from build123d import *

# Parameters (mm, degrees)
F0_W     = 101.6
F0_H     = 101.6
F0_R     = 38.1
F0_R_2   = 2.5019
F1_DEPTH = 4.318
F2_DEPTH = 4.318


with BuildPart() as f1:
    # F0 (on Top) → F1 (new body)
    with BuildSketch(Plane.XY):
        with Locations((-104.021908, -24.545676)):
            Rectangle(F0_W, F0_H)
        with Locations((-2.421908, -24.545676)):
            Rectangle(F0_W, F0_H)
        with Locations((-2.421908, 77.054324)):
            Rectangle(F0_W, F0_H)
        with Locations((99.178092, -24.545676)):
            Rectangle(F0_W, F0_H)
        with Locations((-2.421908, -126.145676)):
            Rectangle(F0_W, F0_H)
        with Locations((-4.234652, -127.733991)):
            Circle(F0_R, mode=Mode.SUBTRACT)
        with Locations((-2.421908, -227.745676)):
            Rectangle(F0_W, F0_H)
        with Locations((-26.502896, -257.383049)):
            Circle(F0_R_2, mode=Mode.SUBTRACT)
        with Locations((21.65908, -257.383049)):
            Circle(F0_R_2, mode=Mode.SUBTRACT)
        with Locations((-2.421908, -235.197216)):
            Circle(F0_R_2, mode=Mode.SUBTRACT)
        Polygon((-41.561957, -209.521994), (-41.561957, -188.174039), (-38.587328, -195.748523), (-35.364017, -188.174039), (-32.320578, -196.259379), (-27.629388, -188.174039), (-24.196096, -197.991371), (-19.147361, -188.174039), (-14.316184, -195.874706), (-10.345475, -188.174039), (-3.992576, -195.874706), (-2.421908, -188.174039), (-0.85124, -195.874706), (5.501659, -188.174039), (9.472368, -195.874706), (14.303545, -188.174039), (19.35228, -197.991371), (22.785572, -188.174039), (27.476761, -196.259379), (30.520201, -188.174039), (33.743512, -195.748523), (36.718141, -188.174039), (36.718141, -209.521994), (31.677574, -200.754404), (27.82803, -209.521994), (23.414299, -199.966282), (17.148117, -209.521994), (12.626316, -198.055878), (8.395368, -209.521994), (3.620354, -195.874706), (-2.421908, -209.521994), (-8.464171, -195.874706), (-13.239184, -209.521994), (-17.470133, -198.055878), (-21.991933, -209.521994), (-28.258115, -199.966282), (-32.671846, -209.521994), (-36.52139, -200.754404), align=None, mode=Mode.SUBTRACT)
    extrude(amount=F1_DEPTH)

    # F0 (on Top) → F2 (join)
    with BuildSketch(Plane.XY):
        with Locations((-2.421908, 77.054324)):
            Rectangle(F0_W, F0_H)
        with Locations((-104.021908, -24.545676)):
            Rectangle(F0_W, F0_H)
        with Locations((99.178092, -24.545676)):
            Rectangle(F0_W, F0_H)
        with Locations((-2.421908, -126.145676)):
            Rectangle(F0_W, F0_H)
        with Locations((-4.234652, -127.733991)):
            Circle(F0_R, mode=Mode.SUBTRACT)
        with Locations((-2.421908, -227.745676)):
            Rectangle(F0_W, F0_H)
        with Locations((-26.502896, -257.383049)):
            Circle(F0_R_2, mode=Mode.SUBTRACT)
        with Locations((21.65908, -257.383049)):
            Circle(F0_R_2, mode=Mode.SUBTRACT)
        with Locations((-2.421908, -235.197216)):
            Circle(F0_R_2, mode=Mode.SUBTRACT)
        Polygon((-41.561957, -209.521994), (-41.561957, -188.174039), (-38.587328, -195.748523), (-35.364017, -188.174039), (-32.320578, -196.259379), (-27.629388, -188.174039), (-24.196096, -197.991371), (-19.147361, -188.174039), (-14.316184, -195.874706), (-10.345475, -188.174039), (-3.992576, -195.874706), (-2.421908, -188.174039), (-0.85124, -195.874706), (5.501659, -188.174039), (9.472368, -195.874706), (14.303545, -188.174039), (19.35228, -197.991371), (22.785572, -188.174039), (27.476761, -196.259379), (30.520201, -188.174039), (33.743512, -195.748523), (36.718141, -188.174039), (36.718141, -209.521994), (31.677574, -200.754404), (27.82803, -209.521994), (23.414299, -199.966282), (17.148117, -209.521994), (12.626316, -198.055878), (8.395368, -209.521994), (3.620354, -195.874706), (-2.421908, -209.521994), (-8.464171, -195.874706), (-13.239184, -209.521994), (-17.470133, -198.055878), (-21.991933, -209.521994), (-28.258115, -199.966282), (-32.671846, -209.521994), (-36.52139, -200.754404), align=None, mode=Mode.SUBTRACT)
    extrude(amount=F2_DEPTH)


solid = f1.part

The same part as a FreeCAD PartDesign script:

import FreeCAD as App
import Part
import Sketcher
from FreeCAD import Vector
Q = App.Units.Quantity


def add_polygon(sketch, points):
    """Adds a closed chain of lines whose ends are joined by coincident constraints."""
    first, n = sketch.GeometryCount, len(points)
    for a, b in zip(points, points[1:] + points[:1]):
        sketch.addGeometry(Part.LineSegment(App.Vector(*a, 0), App.Vector(*b, 0)), False)
    for i in range(n):
        sketch.addConstraint(Sketcher.Constraint("Coincident", first + i, 2, first + (i + 1) % n, 1))

doc = App.newDocument("Part")
params = doc.addObject("Spreadsheet::Sheet", "Params")
for row, (alias, value) in enumerate([
    ("sketch1_diameter", "3 in"),
    ("sketch1_width", "4 in"),
    ("sketch1_height", "8 in"),
    ("sketch1_diameter2", "0.197 in"),
    ("pad1_length", "0.17 in"),
    ("sketch2_diameter", "3 in"),
    ("sketch2_width", "4 in"),
    ("sketch2_height", "8 in"),
    ("sketch2_diameter2", "0.197 in"),
    ("pad2_length", "0.17 in"),
], start=1):
    params.set(f"A{row}", alias)
    params.set(f"B{row}", "=" + value)
    params.setAlias(f"B{row}", alias)

body = doc.addObject("PartDesign::Body", "Body")

sketch1 = body.newObject("Sketcher::SketchObject", "Sketch")
sketch1.AttachmentSupport = (doc.getObject("XY_Plane"), [""])
sketch1.MapMode = "FlatFace"
add_polygon(sketch1, [(-154.821908, 26.254324), (-154.821908, -75.345676), (-53.221908, -75.345676), (-53.221908, -278.545676), (48.378092, -278.545676), (48.378092, -75.345676), (149.978092, -75.345676), (149.978092, 26.254324), (48.378092, 26.254324), (48.378092, 127.854324), (-53.221908, 127.854324), (-53.221908, 26.254324)])
sketch1.addGeometry(Part.Circle(Vector(-26.502896, -257.383049, 0), Vector(0, 0, 1), 2.5019), False)
sketch1.addGeometry(Part.Circle(Vector(-2.421908, -235.197216, 0), Vector(0, 0, 1), 2.5019), False)
sketch1.addGeometry(Part.Circle(Vector(21.65908, -257.383049, 0), Vector(0, 0, 1), 2.5019), False)
add_polygon(sketch1, [(-36.52139, -200.754404), (-41.561957, -209.521994), (-41.561957, -188.174039), (-38.587328, -195.748523), (-35.364017, -188.174039), (-32.320578, -196.259379), (-27.629388, -188.174039), (-24.196096, -197.991371), (-19.147361, -188.174039), (-14.316184, -195.874706), (-10.345475, -188.174039), (-3.992576, -195.874706), (-2.421908, -188.174039), (-0.85124, -195.874706), (5.501659, -188.174039), (9.472368, -195.874706), (14.303545, -188.174039), (19.35228, -197.991371), (22.785572, -188.174039), (27.476761, -196.259379), (30.520201, -188.174039), (33.743512, -195.748523), (36.718141, -188.174039), (36.718141, -209.521994), (31.677574, -200.754404), (27.82803, -209.521994), (23.414299, -199.966282), (17.148117, -209.521994), (12.626316, -198.055878), (8.395368, -209.521994), (3.620354, -195.874706), (-2.421908, -209.521994), (-8.464171, -195.874706), (-13.239184, -209.521994), (-17.470133, -198.055878), (-21.991933, -209.521994), (-28.258115, -199.966282), (-32.671846, -209.521994)])
sketch1.addGeometry(Part.Circle(Vector(-4.234652, -127.733991, 0), Vector(0, 0, 1), 38.1), False)
sketch1.addConstraint(Sketcher.Constraint("Vertical", 0))
sketch1.addConstraint(Sketcher.Constraint("Horizontal", 1))
sketch1.addConstraint(Sketcher.Constraint("Vertical", 2))
sketch1.addConstraint(Sketcher.Constraint("Horizontal", 3))
sketch1.addConstraint(Sketcher.Constraint("Vertical", 4))
sketch1.addConstraint(Sketcher.Constraint("Horizontal", 5))
sketch1.addConstraint(Sketcher.Constraint("Vertical", 6))
sketch1.addConstraint(Sketcher.Constraint("Horizontal", 7))
sketch1.addConstraint(Sketcher.Constraint("Vertical", 8))
sketch1.addConstraint(Sketcher.Constraint("Horizontal", 9))
sketch1.addConstraint(Sketcher.Constraint("Vertical", 10))
sketch1.addConstraint(Sketcher.Constraint("Horizontal", 11))
sketch1.addConstraint(Sketcher.Constraint("Vertical", 16))
sketch1.addConstraint(Sketcher.Constraint("Vertical", 37))
sketch1.addConstraint(Sketcher.Constraint("Equal", 12, 13))
sketch1.addConstraint(Sketcher.Constraint("Equal", 13, 14))
sketch1.addConstraint(Sketcher.Constraint("Horizontal", 12, 3, 14, 3))
sketch1.addConstraint(Sketcher.Constraint("Horizontal", 1, 2, 4, 2))
sketch1.addConstraint(Sketcher.Constraint("Horizontal", 7, 2, 10, 2))
sketch1.addConstraint(Sketcher.Constraint("Horizontal", 16, 2, 18, 2))
sketch1.addConstraint(Sketcher.Constraint("Horizontal", 18, 2, 20, 2))
sketch1.addConstraint(Sketcher.Constraint("Horizontal", 20, 2, 22, 2))
sketch1.addConstraint(Sketcher.Constraint("Horizontal", 22, 2, 24, 2))
sketch1.addConstraint(Sketcher.Constraint("Horizontal", 23, 2, 25, 2))
sketch1.addConstraint(Sketcher.Constraint("Horizontal", 24, 2, 26, 2))
sketch1.addConstraint(Sketcher.Constraint("Horizontal", 25, 2, 27, 2))
sketch1.addConstraint(Sketcher.Constraint("Horizontal", 26, 2, 28, 2))
sketch1.addConstraint(Sketcher.Constraint("Horizontal", 27, 2, 29, 2))
sketch1.addConstraint(Sketcher.Constraint("Horizontal", 28, 2, 30, 2))
sketch1.addConstraint(Sketcher.Constraint("Horizontal", 21, 2, 31, 2))
sketch1.addConstraint(Sketcher.Constraint("Horizontal", 30, 2, 32, 2))
sketch1.addConstraint(Sketcher.Constraint("Horizontal", 19, 2, 33, 2))
sketch1.addConstraint(Sketcher.Constraint("Horizontal", 32, 2, 34, 2))
sketch1.addConstraint(Sketcher.Constraint("Horizontal", 17, 2, 35, 2))
sketch1.addConstraint(Sketcher.Constraint("Horizontal", 34, 2, 36, 2))
sketch1.addConstraint(Sketcher.Constraint("Horizontal", 15, 2, 37, 2))
sketch1.addConstraint(Sketcher.Constraint("Horizontal", 37, 2, 39, 2))
sketch1.addConstraint(Sketcher.Constraint("Horizontal", 39, 2, 41, 2))
sketch1.addConstraint(Sketcher.Constraint("Horizontal", 41, 2, 43, 2))
sketch1.addConstraint(Sketcher.Constraint("Horizontal", 29, 2, 44, 2))
sketch1.addConstraint(Sketcher.Constraint("Horizontal", 43, 2, 45, 2))
sketch1.addConstraint(Sketcher.Constraint("Horizontal", 44, 2, 46, 2))
sketch1.addConstraint(Sketcher.Constraint("Horizontal", 45, 2, 47, 2))
sketch1.addConstraint(Sketcher.Constraint("Horizontal", 42, 2, 48, 2))
sketch1.addConstraint(Sketcher.Constraint("Horizontal", 47, 2, 49, 2))
sketch1.addConstraint(Sketcher.Constraint("Horizontal", 40, 2, 50, 2))
sketch1.addConstraint(Sketcher.Constraint("Horizontal", 49, 2, 51, 2))
sketch1.addConstraint(Sketcher.Constraint("Horizontal", 38, 2, 52, 2))
sketch1.addConstraint(Sketcher.Constraint("Vertical", 4, 2, 7, 2))
sketch1.addConstraint(Sketcher.Constraint("Vertical", 2, 2, 9, 2))
sketch1.addConstraint(Sketcher.Constraint("Vertical", 13, 3, 26, 2))
sketch1.addConstraint(Sketcher.Constraint("Vertical", 26, 2, 45, 2))
sketch1.addConstraint(Sketcher.Constraint("Equal", 1, 3))
sketch1.addConstraint(Sketcher.Constraint("Equal", 3, 5))
sketch1.addConstraint(Sketcher.Constraint("Equal", 11, 0))
sketch1.addConstraint(Sketcher.Constraint("Equal", 6, 8))
sketch1.addConstraint(Sketcher.Constraint("Equal", 26, 27))
sketch1.addConstraint(Sketcher.Constraint("Equal", 25, 28))
sketch1.addConstraint(Sketcher.Constraint("Equal", 24, 29))
sketch1.addConstraint(Sketcher.Constraint("Equal", 23, 30))
sketch1.addConstraint(Sketcher.Constraint("Equal", 22, 31))
sketch1.addConstraint(Sketcher.Constraint("Equal", 21, 32))
sketch1.addConstraint(Sketcher.Constraint("Equal", 20, 33))
sketch1.addConstraint(Sketcher.Constraint("Equal", 19, 34))
sketch1.addConstraint(Sketcher.Constraint("Equal", 18, 35))
sketch1.addConstraint(Sketcher.Constraint("Equal", 17, 36))
sketch1.addConstraint(Sketcher.Constraint("Equal", 15, 38))
sketch1.addConstraint(Sketcher.Constraint("Equal", 45, 46))
sketch1.addConstraint(Sketcher.Constraint("Equal", 44, 47))
sketch1.addConstraint(Sketcher.Constraint("Equal", 43, 48))
sketch1.addConstraint(Sketcher.Constraint("Equal", 42, 49))
sketch1.addConstraint(Sketcher.Constraint("Equal", 41, 50))
sketch1.addConstraint(Sketcher.Constraint("Equal", 40, 51))
sketch1.addConstraint(Sketcher.Constraint("Diameter", 53, Q("3 in")))
sketch1.addConstraint(Sketcher.Constraint("DistanceX", 1, 1, 1, 2, Q("4 in")))
sketch1.addConstraint(Sketcher.Constraint("DistanceY", 2, 2, 2, 1, Q("8 in")))
sketch1.addConstraint(Sketcher.Constraint("Diameter", 12, Q("0.197 in")))
sketch1.addConstraint(Sketcher.Constraint("DistanceX", 0, 2, 13, 3, Q("6 in")))
sketch1.addConstraint(Sketcher.Constraint("DistanceY", 15, 2, 53, 3, Q("3.2200001 in")))
sketch1.addConstraint(Sketcher.Constraint("DistanceX", 21, 2, 24, 2, Q("0.5453 in")))
sketch1.addConstraint(Sketcher.Constraint("DistanceX", 41, 2, 40, 2, Q("0.2467001 in")))
sketch1.addConstraint(Sketcher.Constraint("Distance", 18, 8.231801))
sketch1.addConstraint(Sketcher.Constraint("DistanceX", -1, 1, 34, 2, 30.520201))
sketch1.addConstraint(Sketcher.Constraint("DistanceX", -1, 1, 40, 2, 23.414299))
sketch1.addConstraint(Sketcher.Constraint("DistanceX", 24, 2, 25, 2, 6.352899))
sketch1.addConstraint(Sketcher.Constraint("DistanceX", 28, 2, 33, 2, 21.975102))
sketch1.addConstraint(Sketcher.Constraint("DistanceX", 43, 2, 29, 2, 1.077))
sketch1.addConstraint(Sketcher.Constraint("DistanceX", 49, 2, 48, 2, 4.5218))
sketch1.addConstraint(Sketcher.Constraint("Distance", 19, 8.639169))
sketch1.addConstraint(Sketcher.Constraint("Distance", 21, 10.400361))
sketch1.addConstraint(Sketcher.Constraint("Distance", 24, 8.66411))
sketch1.addConstraint(Sketcher.Constraint("Distance", 39, 9.57547))
sketch1.addConstraint(Sketcher.Constraint("Distance", 40, 10.525809))
sketch1.addConstraint(Sketcher.Constraint("Distance", 45, 14.925059))
sketch1.addConstraint(Sketcher.Constraint("Distance", 49, 12.325522))
sketch1.addConstraint(Sketcher.Constraint("DistanceY", 16, 1, 16, 2, 21.347955))
sketch1.addConstraint(Sketcher.Constraint("DistanceY", 12, 3, -1, 1, 257.383049))
sketch1.addConstraint(Sketcher.Constraint("DistanceX", 13, 3, -1, 1, 2.421908))
sketch1.addConstraint(Sketcher.Constraint("DistanceX", -1, 1, 14, 3, 21.65908))
sketch1.addConstraint(Sketcher.Constraint("DistanceX", 53, 3, -1, 1, 4.234652))
sketch1.addConstraint(Sketcher.Constraint("DistanceY", 53, 3, -1, 1, 127.733991))
sketch1.addConstraint(Sketcher.Constraint("DistanceY", 19, 2, -1, 1, 196.259379))
sketch1.addConstraint(Sketcher.Constraint("DistanceY", 21, 2, -1, 1, 197.991371))
sketch1.addConstraint(Sketcher.Constraint("DistanceX", 22, 2, -1, 1, 19.147361))
sketch1.addConstraint(Sketcher.Constraint("DistanceX", -1, 1, 36, 2, 36.718141))
sketch1.addConstraint(Sketcher.Constraint("DistanceX", -1, 1, 39, 2, 27.82803))
sketch1.addConstraint(Sketcher.Constraint("DistanceX", 46, 2, -1, 1, 8.464171))
sketch1.addConstraint(Sketcher.Constraint("DistanceX", 52, 2, -1, 1, 36.52139))
sketch1.addConstraint(Sketcher.Constraint("DistanceY", 13, 3, 0, 2, 159.85154))
sketch1.addConstraint(Sketcher.Constraint("DistanceX", 1, 2, 12, 3, 26.719012))
sketch1.addConstraint(Sketcher.Constraint("DistanceY", 13, 3, 15, 2, 25.675222))
sketch1.addConstraint(Sketcher.Constraint("DistanceX", 16, 2, 17, 2, 2.974629))
sketch1.setExpression("Constraints[123]", "Params.sketch1_diameter")
sketch1.setExpression("Constraints[124]", "Params.sketch1_width")
sketch1.setExpression("Constraints[125]", "Params.sketch1_height")
sketch1.setExpression("Constraints[126]", "Params.sketch1_diameter2")
pad1 = body.newObject("PartDesign::Pad", "Pad")
pad1.Profile = sketch1
pad1.setExpression("Length", "Params.pad1_length")

sketch2 = body.newObject("Sketcher::SketchObject", "Sketch001")
sketch2.AttachmentSupport = (doc.getObject("XY_Plane"), [""])
sketch2.MapMode = "FlatFace"
add_polygon(sketch2, [(-53.221908, 127.854324), (-53.221908, 26.254324), (48.378092, 26.254324), (48.378092, 127.854324)])
add_polygon(sketch2, [(-154.821908, 26.254324), (-154.821908, -75.345676), (-53.221908, -75.345676), (-53.221908, 26.254324)])
add_polygon(sketch2, [(48.378092, 26.254324), (48.378092, -75.345676), (149.978092, -75.345676), (149.978092, 26.254324)])
add_polygon(sketch2, [(-53.221908, -75.345676), (-53.221908, -278.545676), (48.378092, -278.545676), (48.378092, -75.345676)])
sketch2.addGeometry(Part.Circle(Vector(-26.502896, -257.383049, 0), Vector(0, 0, 1), 2.5019), False)
sketch2.addGeometry(Part.Circle(Vector(-2.421908, -235.197216, 0), Vector(0, 0, 1), 2.5019), False)
sketch2.addGeometry(Part.Circle(Vector(21.65908, -257.383049, 0), Vector(0, 0, 1), 2.5019), False)
add_polygon(sketch2, [(-36.52139, -200.754404), (-41.561957, -209.521994), (-41.561957, -188.174039), (-38.587328, -195.748523), (-35.364017, -188.174039), (-32.320578, -196.259379), (-27.629388, -188.174039), (-24.196096, -197.991371), (-19.147361, -188.174039), (-14.316184, -195.874706), (-10.345475, -188.174039), (-3.992576, -195.874706), (-2.421908, -188.174039), (-0.85124, -195.874706), (5.501659, -188.174039), (9.472368, -195.874706), (14.303545, -188.174039), (19.35228, -197.991371), (22.785572, -188.174039), (27.476761, -196.259379), (30.520201, -188.174039), (33.743512, -195.748523), (36.718141, -188.174039), (36.718141, -209.521994), (31.677574, -200.754404), (27.82803, -209.521994), (23.414299, -199.966282), (17.148117, -209.521994), (12.626316, -198.055878), (8.395368, -209.521994), (3.620354, -195.874706), (-2.421908, -209.521994), (-8.464171, -195.874706), (-13.239184, -209.521994), (-17.470133, -198.055878), (-21.991933, -209.521994), (-28.258115, -199.966282), (-32.671846, -209.521994)])
sketch2.addGeometry(Part.Circle(Vector(-4.234652, -127.733991, 0), Vector(0, 0, 1), 38.1), False)
sketch2.addConstraint(Sketcher.Constraint("Vertical", 0))
sketch2.addConstraint(Sketcher.Constraint("Horizontal", 1))
sketch2.addConstraint(Sketcher.Constraint("Vertical", 2))
sketch2.addConstraint(Sketcher.Constraint("Horizontal", 3))
sketch2.addConstraint(Sketcher.Constraint("Vertical", 4))
sketch2.addConstraint(Sketcher.Constraint("Horizontal", 5))
sketch2.addConstraint(Sketcher.Constraint("Vertical", 6))
sketch2.addConstraint(Sketcher.Constraint("Horizontal", 7))
sketch2.addConstraint(Sketcher.Constraint("Vertical", 8))
sketch2.addConstraint(Sketcher.Constraint("Horizontal", 9))
sketch2.addConstraint(Sketcher.Constraint("Vertical", 10))
sketch2.addConstraint(Sketcher.Constraint("Horizontal", 11))
sketch2.addConstraint(Sketcher.Constraint("Vertical", 12))
sketch2.addConstraint(Sketcher.Constraint("Horizontal", 13))
sketch2.addConstraint(Sketcher.Constraint("Vertical", 14))
sketch2.addConstraint(Sketcher.Constraint("Horizontal", 15))
sketch2.addConstraint(Sketcher.Constraint("Vertical", 20))
sketch2.addConstraint(Sketcher.Constraint("Vertical", 41))
sketch2.addConstraint(Sketcher.Constraint("Coincident", 6, 2, 0, 2))
sketch2.addConstraint(Sketcher.Constraint("Coincident", 11, 2, 1, 2))
sketch2.addConstraint(Sketcher.Constraint("Coincident", 14, 2, 8, 2))
sketch2.addConstraint(Sketcher.Constraint("Coincident", 15, 2, 5, 2))
sketch2.addConstraint(Sketcher.Constraint("Equal", 16, 17))
sketch2.addConstraint(Sketcher.Constraint("Equal", 17, 18))
sketch2.addConstraint(Sketcher.Constraint("Horizontal", 16, 3, 18, 3))
sketch2.addConstraint(Sketcher.Constraint("Horizontal", 20, 2, 22, 2))
sketch2.addConstraint(Sketcher.Constraint("Horizontal", 22, 2, 24, 2))
sketch2.addConstraint(Sketcher.Constraint("Horizontal", 24, 2, 26, 2))
sketch2.addConstraint(Sketcher.Constraint("Horizontal", 26, 2, 28, 2))
sketch2.addConstraint(Sketcher.Constraint("Horizontal", 27, 2, 29, 2))
sketch2.addConstraint(Sketcher.Constraint("Horizontal", 28, 2, 30, 2))
sketch2.addConstraint(Sketcher.Constraint("Horizontal", 29, 2, 31, 2))
sketch2.addConstraint(Sketcher.Constraint("Horizontal", 30, 2, 32, 2))
sketch2.addConstraint(Sketcher.Constraint("Horizontal", 31, 2, 33, 2))
sketch2.addConstraint(Sketcher.Constraint("Horizontal", 32, 2, 34, 2))
sketch2.addConstraint(Sketcher.Constraint("Horizontal", 25, 2, 35, 2))
sketch2.addConstraint(Sketcher.Constraint("Horizontal", 34, 2, 36, 2))
sketch2.addConstraint(Sketcher.Constraint("Horizontal", 23, 2, 37, 2))
sketch2.addConstraint(Sketcher.Constraint("Horizontal", 36, 2, 38, 2))
sketch2.addConstraint(Sketcher.Constraint("Horizontal", 21, 2, 39, 2))
sketch2.addConstraint(Sketcher.Constraint("Horizontal", 38, 2, 40, 2))
sketch2.addConstraint(Sketcher.Constraint("Horizontal", 19, 2, 41, 2))
sketch2.addConstraint(Sketcher.Constraint("Horizontal", 41, 2, 43, 2))
sketch2.addConstraint(Sketcher.Constraint("Horizontal", 43, 2, 45, 2))
sketch2.addConstraint(Sketcher.Constraint("Horizontal", 45, 2, 47, 2))
sketch2.addConstraint(Sketcher.Constraint("Horizontal", 33, 2, 48, 2))
sketch2.addConstraint(Sketcher.Constraint("Horizontal", 47, 2, 49, 2))
sketch2.addConstraint(Sketcher.Constraint("Horizontal", 48, 2, 50, 2))
sketch2.addConstraint(Sketcher.Constraint("Horizontal", 49, 2, 51, 2))
sketch2.addConstraint(Sketcher.Constraint("Horizontal", 46, 2, 52, 2))
sketch2.addConstraint(Sketcher.Constraint("Horizontal", 51, 2, 53, 2))
sketch2.addConstraint(Sketcher.Constraint("Horizontal", 44, 2, 54, 2))
sketch2.addConstraint(Sketcher.Constraint("Horizontal", 53, 2, 55, 2))
sketch2.addConstraint(Sketcher.Constraint("Horizontal", 42, 2, 56, 2))
sketch2.addConstraint(Sketcher.Constraint("Vertical", 17, 3, 30, 2))
sketch2.addConstraint(Sketcher.Constraint("Vertical", 30, 2, 49, 2))
sketch2.addConstraint(Sketcher.Constraint("Equal", 3, 5))
sketch2.addConstraint(Sketcher.Constraint("Equal", 7, 9))
sketch2.addConstraint(Sketcher.Constraint("Equal", 15, 0))
sketch2.addConstraint(Sketcher.Constraint("Equal", 2, 4))
sketch2.addConstraint(Sketcher.Constraint("Equal", 30, 31))
sketch2.addConstraint(Sketcher.Constraint("Equal", 29, 32))
sketch2.addConstraint(Sketcher.Constraint("Equal", 28, 33))
sketch2.addConstraint(Sketcher.Constraint("Equal", 27, 34))
sketch2.addConstraint(Sketcher.Constraint("Equal", 26, 35))
sketch2.addConstraint(Sketcher.Constraint("Equal", 25, 36))
sketch2.addConstraint(Sketcher.Constraint("Equal", 24, 37))
sketch2.addConstraint(Sketcher.Constraint("Equal", 23, 38))
sketch2.addConstraint(Sketcher.Constraint("Equal", 22, 39))
sketch2.addConstraint(Sketcher.Constraint("Equal", 21, 40))
sketch2.addConstraint(Sketcher.Constraint("Equal", 19, 42))
sketch2.addConstraint(Sketcher.Constraint("Equal", 49, 50))
sketch2.addConstraint(Sketcher.Constraint("Equal", 48, 51))
sketch2.addConstraint(Sketcher.Constraint("Equal", 47, 52))
sketch2.addConstraint(Sketcher.Constraint("Equal", 46, 53))
sketch2.addConstraint(Sketcher.Constraint("Equal", 45, 54))
sketch2.addConstraint(Sketcher.Constraint("Equal", 44, 55))
sketch2.addConstraint(Sketcher.Constraint("Diameter", 57, Q("3 in")))
sketch2.addConstraint(Sketcher.Constraint("DistanceX", 1, 1, 1, 2, Q("4 in")))
sketch2.addConstraint(Sketcher.Constraint("DistanceY", 12, 2, 12, 1, Q("8 in")))
sketch2.addConstraint(Sketcher.Constraint("Diameter", 16, Q("0.197 in")))
sketch2.addConstraint(Sketcher.Constraint("DistanceX", 0, 2, 17, 3, Q("2 in")))
sketch2.addConstraint(Sketcher.Constraint("DistanceY", 19, 2, 57, 3, Q("3.2200001 in")))
sketch2.addConstraint(Sketcher.Constraint("DistanceX", 25, 2, 28, 2, Q("0.5453 in")))
sketch2.addConstraint(Sketcher.Constraint("DistanceX", 45, 2, 44, 2, Q("0.2467001 in")))
sketch2.addConstraint(Sketcher.Constraint("Distance", 22, 8.231801))
sketch2.addConstraint(Sketcher.Constraint("DistanceX", -1, 1, 38, 2, 30.520201))
sketch2.addConstraint(Sketcher.Constraint("DistanceX", -1, 1, 44, 2, 23.414299))
sketch2.addConstraint(Sketcher.Constraint("DistanceX", 28, 2, 29, 2, 6.352899))
sketch2.addConstraint(Sketcher.Constraint("DistanceX", 32, 2, 37, 2, 21.975102))
sketch2.addConstraint(Sketcher.Constraint("DistanceX", 47, 2, 33, 2, 1.077))
sketch2.addConstraint(Sketcher.Constraint("DistanceX", 53, 2, 52, 2, 4.5218))
sketch2.addConstraint(Sketcher.Constraint("Distance", 23, 8.639169))
sketch2.addConstraint(Sketcher.Constraint("Distance", 25, 10.400361))
sketch2.addConstraint(Sketcher.Constraint("Distance", 28, 8.66411))
sketch2.addConstraint(Sketcher.Constraint("Distance", 43, 9.57547))
sketch2.addConstraint(Sketcher.Constraint("Distance", 44, 10.525809))
sketch2.addConstraint(Sketcher.Constraint("Distance", 49, 14.925059))
sketch2.addConstraint(Sketcher.Constraint("Distance", 53, 12.325522))
sketch2.addConstraint(Sketcher.Constraint("DistanceY", 20, 1, 20, 2, 21.347955))
sketch2.addConstraint(Sketcher.Constraint("DistanceY", 16, 3, -1, 1, 257.383049))
sketch2.addConstraint(Sketcher.Constraint("DistanceX", 17, 3, -1, 1, 2.421908))
sketch2.addConstraint(Sketcher.Constraint("DistanceX", -1, 1, 18, 3, 21.65908))
sketch2.addConstraint(Sketcher.Constraint("DistanceX", 57, 3, -1, 1, 4.234652))
sketch2.addConstraint(Sketcher.Constraint("DistanceY", 57, 3, -1, 1, 127.733991))
sketch2.addConstraint(Sketcher.Constraint("DistanceY", 23, 2, -1, 1, 196.259379))
sketch2.addConstraint(Sketcher.Constraint("DistanceY", 25, 2, -1, 1, 197.991371))
sketch2.addConstraint(Sketcher.Constraint("DistanceX", 26, 2, -1, 1, 19.147361))
sketch2.addConstraint(Sketcher.Constraint("DistanceX", -1, 1, 40, 2, 36.718141))
sketch2.addConstraint(Sketcher.Constraint("DistanceX", -1, 1, 43, 2, 27.82803))
sketch2.addConstraint(Sketcher.Constraint("DistanceX", 50, 2, -1, 1, 8.464171))
sketch2.addConstraint(Sketcher.Constraint("DistanceX", 56, 2, -1, 1, 36.52139))
sketch2.addConstraint(Sketcher.Constraint("DistanceY", 17, 3, 0, 2, 261.45154))
sketch2.addConstraint(Sketcher.Constraint("DistanceX", 0, 2, 16, 3, 26.719012))
sketch2.addConstraint(Sketcher.Constraint("DistanceY", 17, 3, 19, 2, 25.675222))
sketch2.addConstraint(Sketcher.Constraint("DistanceX", 20, 2, 21, 2, 2.974629))
sketch2.setExpression("Constraints[131]", "Params.sketch2_diameter")
sketch2.setExpression("Constraints[132]", "Params.sketch2_width")
sketch2.setExpression("Constraints[133]", "Params.sketch2_height")
sketch2.setExpression("Constraints[134]", "Params.sketch2_diameter2")
pad2 = body.newObject("PartDesign::Pad", "Pad001")
pad2.Profile = sketch2
pad2.setExpression("Length", "Params.pad2_length")

doc.recompute()
